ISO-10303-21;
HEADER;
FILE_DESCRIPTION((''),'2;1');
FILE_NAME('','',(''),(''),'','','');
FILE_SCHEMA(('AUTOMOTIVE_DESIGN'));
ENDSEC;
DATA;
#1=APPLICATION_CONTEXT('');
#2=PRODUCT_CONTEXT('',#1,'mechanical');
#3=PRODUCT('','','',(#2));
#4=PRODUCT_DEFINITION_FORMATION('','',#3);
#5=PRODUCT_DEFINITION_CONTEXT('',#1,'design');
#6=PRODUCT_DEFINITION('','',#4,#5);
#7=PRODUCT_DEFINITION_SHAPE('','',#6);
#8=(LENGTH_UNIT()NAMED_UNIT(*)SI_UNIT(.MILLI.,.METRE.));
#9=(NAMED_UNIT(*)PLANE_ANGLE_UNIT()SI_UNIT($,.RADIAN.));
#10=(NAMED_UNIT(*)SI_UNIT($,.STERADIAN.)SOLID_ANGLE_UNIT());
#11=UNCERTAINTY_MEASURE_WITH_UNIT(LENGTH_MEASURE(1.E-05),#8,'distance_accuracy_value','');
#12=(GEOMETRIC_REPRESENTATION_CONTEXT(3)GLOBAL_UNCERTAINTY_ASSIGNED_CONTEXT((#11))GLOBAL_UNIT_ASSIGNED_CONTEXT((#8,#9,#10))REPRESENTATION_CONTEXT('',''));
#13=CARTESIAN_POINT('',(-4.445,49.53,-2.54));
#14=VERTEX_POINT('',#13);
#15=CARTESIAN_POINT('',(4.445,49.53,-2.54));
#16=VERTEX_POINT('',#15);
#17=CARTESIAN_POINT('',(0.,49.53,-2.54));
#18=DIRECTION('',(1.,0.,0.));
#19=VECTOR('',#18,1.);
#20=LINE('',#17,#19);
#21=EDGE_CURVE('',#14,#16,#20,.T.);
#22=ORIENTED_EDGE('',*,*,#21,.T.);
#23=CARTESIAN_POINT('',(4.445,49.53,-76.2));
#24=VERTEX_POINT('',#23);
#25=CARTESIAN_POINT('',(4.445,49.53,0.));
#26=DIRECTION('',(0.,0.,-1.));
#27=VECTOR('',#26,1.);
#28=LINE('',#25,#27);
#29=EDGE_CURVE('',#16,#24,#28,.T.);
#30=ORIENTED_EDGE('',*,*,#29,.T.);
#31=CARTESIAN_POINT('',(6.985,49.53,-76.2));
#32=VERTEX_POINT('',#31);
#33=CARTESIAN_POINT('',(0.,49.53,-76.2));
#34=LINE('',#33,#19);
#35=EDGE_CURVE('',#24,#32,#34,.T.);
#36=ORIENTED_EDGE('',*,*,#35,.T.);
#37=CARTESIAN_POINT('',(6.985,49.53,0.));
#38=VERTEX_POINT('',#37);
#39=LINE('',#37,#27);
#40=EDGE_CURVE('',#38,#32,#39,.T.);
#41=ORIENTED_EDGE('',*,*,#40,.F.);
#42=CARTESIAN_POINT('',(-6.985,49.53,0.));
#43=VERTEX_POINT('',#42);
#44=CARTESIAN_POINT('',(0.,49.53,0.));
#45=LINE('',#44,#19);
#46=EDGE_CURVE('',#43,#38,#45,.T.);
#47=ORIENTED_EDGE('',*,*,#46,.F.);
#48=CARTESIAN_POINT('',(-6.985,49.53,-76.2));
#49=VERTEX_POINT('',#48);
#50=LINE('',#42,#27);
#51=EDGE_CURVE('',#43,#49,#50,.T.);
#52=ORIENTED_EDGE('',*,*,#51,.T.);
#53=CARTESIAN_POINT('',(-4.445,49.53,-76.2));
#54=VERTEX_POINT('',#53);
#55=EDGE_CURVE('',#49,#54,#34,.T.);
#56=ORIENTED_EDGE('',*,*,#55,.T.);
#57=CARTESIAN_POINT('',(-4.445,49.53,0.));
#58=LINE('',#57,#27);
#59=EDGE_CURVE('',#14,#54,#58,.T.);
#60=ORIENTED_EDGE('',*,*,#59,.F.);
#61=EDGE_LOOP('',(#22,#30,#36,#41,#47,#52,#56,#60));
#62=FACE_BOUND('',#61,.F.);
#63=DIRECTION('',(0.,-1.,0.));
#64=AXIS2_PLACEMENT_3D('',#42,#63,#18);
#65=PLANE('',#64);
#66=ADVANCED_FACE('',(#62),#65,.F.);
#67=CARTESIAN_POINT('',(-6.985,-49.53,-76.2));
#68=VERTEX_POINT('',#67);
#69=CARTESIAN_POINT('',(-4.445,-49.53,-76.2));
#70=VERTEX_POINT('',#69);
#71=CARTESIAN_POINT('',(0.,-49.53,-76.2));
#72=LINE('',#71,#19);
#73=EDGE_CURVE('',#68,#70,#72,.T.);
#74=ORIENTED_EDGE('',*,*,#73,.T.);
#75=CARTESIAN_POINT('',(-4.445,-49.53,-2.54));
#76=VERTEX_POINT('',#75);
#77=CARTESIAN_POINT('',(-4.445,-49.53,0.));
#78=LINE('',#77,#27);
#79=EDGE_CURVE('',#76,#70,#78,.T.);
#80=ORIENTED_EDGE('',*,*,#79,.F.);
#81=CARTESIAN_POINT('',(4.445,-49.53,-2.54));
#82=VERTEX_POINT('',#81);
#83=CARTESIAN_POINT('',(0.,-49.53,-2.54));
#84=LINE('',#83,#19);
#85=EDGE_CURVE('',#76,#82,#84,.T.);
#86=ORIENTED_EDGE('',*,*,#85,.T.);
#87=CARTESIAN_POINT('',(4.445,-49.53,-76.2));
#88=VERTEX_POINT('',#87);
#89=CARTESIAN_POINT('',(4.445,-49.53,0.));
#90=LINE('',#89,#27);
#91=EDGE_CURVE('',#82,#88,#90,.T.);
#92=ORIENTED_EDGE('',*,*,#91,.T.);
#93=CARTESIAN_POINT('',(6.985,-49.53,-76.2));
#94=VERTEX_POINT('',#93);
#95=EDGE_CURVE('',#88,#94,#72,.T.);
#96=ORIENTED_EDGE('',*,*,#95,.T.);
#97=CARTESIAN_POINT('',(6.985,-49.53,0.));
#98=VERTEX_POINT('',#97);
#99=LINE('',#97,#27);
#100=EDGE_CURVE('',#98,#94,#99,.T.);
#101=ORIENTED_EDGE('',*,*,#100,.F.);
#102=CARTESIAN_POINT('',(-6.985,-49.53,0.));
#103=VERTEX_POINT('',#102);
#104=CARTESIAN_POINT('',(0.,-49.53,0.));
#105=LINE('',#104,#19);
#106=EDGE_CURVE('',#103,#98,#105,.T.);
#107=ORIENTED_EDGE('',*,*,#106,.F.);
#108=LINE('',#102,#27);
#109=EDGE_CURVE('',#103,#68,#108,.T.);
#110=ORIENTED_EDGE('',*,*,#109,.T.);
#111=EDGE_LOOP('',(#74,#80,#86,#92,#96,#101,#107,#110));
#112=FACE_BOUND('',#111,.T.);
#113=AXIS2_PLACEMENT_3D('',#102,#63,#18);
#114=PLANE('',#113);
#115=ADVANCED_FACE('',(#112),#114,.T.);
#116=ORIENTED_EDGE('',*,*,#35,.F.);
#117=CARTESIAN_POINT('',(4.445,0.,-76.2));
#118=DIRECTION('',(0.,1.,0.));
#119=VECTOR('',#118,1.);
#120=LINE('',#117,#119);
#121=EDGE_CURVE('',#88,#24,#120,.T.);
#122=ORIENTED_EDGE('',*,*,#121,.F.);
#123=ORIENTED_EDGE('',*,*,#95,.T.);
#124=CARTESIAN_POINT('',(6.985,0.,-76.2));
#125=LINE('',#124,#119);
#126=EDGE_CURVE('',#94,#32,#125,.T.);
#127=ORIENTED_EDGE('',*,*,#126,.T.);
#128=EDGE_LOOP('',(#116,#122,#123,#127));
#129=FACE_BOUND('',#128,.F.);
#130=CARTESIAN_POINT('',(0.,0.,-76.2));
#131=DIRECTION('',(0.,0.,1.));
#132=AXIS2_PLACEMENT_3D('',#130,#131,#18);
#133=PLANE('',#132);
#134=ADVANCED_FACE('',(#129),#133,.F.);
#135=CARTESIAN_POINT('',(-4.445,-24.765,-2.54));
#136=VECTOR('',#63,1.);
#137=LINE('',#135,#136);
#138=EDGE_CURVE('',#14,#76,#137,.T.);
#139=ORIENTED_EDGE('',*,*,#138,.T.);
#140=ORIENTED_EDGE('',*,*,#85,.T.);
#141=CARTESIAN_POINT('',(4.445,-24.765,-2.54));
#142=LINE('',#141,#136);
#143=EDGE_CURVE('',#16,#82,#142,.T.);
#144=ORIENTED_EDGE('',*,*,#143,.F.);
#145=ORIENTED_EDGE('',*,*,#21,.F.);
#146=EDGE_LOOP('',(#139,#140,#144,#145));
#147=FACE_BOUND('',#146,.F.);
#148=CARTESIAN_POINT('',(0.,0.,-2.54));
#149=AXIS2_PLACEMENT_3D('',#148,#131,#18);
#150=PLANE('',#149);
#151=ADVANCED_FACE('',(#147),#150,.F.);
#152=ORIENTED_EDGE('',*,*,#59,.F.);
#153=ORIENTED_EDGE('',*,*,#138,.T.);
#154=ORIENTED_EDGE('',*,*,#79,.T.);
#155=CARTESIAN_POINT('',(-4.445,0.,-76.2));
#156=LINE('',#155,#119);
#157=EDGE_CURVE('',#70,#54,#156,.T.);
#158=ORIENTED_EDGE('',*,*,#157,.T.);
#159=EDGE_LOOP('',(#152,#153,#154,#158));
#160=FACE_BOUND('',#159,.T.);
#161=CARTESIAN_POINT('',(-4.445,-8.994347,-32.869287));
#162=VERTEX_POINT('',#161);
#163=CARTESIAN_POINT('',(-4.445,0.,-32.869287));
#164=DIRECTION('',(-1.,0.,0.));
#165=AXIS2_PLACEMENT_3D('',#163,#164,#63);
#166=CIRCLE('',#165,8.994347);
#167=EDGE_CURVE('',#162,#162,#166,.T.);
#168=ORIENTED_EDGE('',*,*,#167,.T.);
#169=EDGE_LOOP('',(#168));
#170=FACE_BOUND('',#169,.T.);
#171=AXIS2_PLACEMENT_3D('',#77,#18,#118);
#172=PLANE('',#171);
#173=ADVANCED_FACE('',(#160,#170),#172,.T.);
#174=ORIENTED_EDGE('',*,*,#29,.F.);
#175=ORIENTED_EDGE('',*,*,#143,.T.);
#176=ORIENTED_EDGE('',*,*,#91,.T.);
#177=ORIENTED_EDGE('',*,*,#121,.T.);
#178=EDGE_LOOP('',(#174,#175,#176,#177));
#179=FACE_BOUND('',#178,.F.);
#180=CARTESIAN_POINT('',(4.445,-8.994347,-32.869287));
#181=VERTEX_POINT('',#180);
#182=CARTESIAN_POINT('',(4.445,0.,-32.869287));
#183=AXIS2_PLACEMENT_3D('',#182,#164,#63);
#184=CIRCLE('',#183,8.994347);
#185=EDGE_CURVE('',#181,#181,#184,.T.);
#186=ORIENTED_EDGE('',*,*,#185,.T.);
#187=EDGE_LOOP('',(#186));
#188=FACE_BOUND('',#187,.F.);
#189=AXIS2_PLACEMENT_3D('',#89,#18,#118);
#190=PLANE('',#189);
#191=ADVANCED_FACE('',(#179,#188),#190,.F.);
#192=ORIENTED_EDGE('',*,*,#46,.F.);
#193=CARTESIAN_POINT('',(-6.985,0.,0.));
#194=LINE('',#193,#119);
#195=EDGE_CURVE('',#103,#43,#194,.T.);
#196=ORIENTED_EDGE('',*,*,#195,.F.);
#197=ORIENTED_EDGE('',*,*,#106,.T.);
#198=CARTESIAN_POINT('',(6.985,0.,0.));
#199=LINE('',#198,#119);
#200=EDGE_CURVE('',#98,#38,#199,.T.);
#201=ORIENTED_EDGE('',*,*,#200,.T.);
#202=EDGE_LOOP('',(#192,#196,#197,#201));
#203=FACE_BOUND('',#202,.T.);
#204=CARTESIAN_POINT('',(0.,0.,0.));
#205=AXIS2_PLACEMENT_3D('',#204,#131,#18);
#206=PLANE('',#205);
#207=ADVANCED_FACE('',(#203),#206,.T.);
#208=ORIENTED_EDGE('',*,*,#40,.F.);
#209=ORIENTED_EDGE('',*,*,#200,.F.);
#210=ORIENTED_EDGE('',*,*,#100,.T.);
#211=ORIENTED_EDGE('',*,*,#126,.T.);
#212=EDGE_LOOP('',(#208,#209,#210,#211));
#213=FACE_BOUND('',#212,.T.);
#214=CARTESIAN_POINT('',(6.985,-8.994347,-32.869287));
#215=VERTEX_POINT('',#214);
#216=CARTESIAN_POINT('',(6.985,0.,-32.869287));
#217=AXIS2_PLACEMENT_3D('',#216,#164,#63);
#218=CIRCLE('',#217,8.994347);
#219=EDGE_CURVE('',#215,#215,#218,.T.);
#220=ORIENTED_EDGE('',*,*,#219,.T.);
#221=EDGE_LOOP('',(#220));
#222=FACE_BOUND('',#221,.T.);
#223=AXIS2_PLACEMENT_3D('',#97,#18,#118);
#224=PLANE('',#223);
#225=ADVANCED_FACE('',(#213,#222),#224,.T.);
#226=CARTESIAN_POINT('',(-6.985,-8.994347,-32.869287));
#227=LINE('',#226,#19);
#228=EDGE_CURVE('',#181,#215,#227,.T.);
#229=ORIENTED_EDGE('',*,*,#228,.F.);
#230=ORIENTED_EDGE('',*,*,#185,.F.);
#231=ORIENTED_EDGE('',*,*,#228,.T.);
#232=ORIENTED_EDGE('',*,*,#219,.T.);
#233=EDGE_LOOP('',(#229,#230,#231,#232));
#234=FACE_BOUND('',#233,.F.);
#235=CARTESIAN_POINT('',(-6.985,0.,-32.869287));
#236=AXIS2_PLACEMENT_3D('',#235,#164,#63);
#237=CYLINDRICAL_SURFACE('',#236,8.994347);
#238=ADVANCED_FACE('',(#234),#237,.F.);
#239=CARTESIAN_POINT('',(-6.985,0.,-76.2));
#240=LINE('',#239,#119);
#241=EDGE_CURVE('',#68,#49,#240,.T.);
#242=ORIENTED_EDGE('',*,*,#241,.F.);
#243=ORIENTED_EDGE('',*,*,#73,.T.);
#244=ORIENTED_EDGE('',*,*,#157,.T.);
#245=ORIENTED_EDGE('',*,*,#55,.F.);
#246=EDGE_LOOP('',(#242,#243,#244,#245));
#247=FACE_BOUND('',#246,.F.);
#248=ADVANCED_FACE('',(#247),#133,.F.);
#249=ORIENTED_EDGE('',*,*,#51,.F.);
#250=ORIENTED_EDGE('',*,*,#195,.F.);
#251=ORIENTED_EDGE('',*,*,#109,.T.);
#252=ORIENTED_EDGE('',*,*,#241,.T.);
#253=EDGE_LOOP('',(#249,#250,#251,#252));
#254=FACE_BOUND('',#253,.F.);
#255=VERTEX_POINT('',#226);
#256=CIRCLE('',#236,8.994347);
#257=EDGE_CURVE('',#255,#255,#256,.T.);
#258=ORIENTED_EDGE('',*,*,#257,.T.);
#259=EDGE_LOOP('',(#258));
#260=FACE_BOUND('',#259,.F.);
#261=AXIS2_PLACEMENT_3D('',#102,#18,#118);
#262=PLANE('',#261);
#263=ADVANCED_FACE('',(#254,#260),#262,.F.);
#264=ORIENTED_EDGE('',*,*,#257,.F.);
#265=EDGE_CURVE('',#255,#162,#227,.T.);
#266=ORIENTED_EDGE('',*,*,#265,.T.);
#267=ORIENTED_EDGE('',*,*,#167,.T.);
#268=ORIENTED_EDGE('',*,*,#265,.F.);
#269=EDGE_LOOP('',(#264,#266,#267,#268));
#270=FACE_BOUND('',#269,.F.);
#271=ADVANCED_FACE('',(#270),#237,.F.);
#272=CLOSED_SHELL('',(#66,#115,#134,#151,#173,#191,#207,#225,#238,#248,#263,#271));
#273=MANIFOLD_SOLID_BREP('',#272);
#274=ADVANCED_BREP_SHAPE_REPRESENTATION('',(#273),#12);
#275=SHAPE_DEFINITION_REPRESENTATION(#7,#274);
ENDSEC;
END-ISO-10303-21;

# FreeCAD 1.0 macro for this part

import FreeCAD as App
import Part
import Sketcher
from FreeCAD import Vector
Q = App.Units.Quantity


def faces_at(feature, points):
    """Names of the faces that lie closest to the given points."""
    faces = feature.Shape.Faces
    near = lambda p: min(range(len(faces)), key=lambda i: faces[i].distToShape(Part.Vertex(*p))[0])
    return sorted({f"Face{near(p) + 1}" for p in points})


def add_polygon(sketch, points):
    """Adds a closed chain of lines whose ends are joined by coincident constraints."""
    first, n = sketch.GeometryCount, len(points)
    for a, b in zip(points, points[1:] + points[:1]):
        sketch.addGeometry(Part.LineSegment(App.Vector(*a, 0), App.Vector(*b, 0)), False)
    for i in range(n):
        sketch.addConstraint(Sketcher.Constraint("Coincident", first + i, 2, first + (i + 1) % n, 1))

doc = App.newDocument("Part")
body = doc.addObject("PartDesign::Body", "Body")

# Sketch on XY plane
sketch1 = body.newObject("Sketcher::SketchObject", "Sketch")
sketch1.AttachmentSupport = (doc.getObject("XY_Plane"), [""])
sketch1.MapMode = "FlatFace"
add_polygon(sketch1, [(-6.985, 49.53), (-6.985, -49.53), (6.985, -49.53), (6.985, 49.53)])  # lines 0-3
sketch1.addConstraint([
    Sketcher.Constraint("Vertical", 0),
    Sketcher.Constraint("Horizontal", 1),
    Sketcher.Constraint("Vertical", 2),
    Sketcher.Constraint("Horizontal", 3),
    Sketcher.Constraint("Symmetric", 0, 2, 2, 2, -1, 1),
    Sketcher.Constraint("DistanceY", 0, 2, 0, 1, Q("3.9 in")),
    Sketcher.Constraint("DistanceX", 1, 1, 1, 2, Q("0.55 in")),
])
pad1 = body.newObject("PartDesign::Pad", "Pad")
pad1.Profile = sketch1
pad1.Length = Q("3 in")
pad1.Reversed = True
doc.recompute()

thickness = body.newObject("PartDesign::Thickness", "Thickness")
thickness.Base = (pad1, faces_at(pad1, [(0, 0, -76.2), (0, 49.53, -38.1), (0, -49.53, -38.1)]))
thickness.Value = Q("0.1 in")
thickness.Reversed = True
thickness.Join = "Arc"

# Sketch on YZ plane
sketch2 = body.newObject("Sketcher::SketchObject", "Sketch001")
sketch2.AttachmentSupport = (doc.getObject("YZ_Plane"), [""])
sketch2.MapMode = "FlatFace"
sketch2.AttachmentOffset = App.Placement(Vector(0, 0, -0.275 * 25.4), App.Rotation())
sketch2.addGeometry(Part.Circle(Vector(0, -32.869287, 0), Vector(0, 0, 1), 8.994347), False)
sketch2.addConstraint([
    Sketcher.Constraint("PointOnObject", 0, 3, -2),
    Sketcher.Constraint("Diameter", 0, 17.988694),
    Sketcher.Constraint("DistanceY", 0, 3, -1, 1, 32.869287),
])
pocket1 = body.newObject("PartDesign::Pocket", "Pocket")
pocket1.Profile = sketch2
pocket1.Length = Q("4.67 in")
pocket1.Reversed = True

doc.recompute()
